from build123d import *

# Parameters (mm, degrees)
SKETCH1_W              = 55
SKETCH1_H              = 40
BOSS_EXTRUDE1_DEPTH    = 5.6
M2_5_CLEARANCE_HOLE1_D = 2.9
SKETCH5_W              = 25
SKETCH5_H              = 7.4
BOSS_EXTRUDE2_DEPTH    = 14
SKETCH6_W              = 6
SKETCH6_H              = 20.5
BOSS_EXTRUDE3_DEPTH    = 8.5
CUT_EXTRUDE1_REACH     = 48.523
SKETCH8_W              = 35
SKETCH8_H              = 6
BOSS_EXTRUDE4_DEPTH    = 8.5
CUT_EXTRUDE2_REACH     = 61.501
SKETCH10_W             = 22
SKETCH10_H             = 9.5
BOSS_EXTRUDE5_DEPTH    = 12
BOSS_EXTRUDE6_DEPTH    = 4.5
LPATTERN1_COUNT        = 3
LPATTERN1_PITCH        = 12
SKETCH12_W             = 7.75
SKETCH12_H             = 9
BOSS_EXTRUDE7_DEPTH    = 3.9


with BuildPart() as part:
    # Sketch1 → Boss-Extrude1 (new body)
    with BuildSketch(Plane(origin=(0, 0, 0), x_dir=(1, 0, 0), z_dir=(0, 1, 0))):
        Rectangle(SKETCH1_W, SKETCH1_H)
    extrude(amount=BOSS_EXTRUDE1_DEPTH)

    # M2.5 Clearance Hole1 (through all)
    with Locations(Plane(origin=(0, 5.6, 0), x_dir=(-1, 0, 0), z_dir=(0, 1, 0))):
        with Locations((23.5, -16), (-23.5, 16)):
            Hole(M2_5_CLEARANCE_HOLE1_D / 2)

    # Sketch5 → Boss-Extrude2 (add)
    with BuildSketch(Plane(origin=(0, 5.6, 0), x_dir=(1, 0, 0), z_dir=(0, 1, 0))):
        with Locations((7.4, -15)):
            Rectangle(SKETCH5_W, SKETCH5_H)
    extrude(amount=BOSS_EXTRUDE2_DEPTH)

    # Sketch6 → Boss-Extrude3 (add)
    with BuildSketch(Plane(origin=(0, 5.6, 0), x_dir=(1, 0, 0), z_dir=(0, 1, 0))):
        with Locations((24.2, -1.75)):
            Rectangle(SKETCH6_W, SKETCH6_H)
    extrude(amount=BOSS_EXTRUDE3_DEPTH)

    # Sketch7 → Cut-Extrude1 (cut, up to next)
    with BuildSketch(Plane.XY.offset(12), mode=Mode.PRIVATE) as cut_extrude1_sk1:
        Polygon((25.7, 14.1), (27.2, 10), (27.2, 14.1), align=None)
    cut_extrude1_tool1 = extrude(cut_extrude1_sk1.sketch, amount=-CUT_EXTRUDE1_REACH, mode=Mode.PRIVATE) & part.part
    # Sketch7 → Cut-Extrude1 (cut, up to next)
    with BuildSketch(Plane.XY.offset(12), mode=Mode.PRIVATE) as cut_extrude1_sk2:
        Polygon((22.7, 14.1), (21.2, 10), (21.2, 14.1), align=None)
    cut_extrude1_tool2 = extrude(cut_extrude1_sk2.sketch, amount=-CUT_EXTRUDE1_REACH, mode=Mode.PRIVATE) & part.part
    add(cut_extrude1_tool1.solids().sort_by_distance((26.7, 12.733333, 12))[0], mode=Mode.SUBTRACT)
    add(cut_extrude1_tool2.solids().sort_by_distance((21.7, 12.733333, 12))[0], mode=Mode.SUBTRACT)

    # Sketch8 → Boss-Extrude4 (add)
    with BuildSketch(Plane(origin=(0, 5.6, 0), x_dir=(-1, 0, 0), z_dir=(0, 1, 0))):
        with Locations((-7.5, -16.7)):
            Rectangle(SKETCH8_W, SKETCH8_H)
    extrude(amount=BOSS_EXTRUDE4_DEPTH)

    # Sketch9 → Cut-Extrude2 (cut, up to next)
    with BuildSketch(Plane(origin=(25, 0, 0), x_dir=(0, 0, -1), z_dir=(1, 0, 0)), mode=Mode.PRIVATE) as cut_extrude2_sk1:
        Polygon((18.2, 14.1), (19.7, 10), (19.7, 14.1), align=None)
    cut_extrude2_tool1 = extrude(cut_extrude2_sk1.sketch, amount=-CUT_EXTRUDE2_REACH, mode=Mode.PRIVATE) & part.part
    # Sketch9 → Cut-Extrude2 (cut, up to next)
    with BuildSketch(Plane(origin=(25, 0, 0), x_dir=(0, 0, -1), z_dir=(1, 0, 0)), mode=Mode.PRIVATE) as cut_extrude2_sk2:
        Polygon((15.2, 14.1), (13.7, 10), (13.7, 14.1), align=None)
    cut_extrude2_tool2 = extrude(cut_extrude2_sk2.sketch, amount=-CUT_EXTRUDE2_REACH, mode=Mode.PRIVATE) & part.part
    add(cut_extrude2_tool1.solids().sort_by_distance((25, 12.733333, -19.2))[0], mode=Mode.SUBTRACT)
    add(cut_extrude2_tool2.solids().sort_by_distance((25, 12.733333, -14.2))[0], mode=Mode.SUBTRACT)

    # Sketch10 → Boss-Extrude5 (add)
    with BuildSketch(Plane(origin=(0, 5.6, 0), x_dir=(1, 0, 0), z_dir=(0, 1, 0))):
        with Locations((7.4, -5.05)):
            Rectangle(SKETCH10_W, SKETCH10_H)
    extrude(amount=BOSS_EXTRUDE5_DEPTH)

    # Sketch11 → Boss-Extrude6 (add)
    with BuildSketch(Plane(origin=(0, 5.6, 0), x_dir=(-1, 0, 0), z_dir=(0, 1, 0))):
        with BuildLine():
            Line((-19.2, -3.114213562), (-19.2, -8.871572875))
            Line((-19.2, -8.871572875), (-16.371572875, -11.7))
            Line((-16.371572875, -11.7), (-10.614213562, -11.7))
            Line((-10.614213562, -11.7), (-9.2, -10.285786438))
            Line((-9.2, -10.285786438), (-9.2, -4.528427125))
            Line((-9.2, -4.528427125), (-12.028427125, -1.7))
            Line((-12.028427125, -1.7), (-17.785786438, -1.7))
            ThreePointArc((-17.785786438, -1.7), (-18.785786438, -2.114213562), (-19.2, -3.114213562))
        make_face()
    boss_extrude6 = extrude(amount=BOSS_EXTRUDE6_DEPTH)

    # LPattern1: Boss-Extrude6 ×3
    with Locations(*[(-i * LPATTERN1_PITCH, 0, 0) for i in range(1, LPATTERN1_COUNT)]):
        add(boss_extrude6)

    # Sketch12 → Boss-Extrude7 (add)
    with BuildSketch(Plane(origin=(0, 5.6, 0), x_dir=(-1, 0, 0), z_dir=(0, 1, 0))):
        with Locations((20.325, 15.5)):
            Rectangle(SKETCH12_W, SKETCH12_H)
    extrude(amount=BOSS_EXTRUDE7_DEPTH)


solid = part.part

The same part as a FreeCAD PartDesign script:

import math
import FreeCAD as App
import Part
import Sketcher

doc = App.newDocument("Part")
body = doc.addObject("PartDesign::Body", "Body")

sketch1 = body.newObject("Sketcher::SketchObject", "Sketch")
sketch1.AttachmentSupport = (doc.getObject("XZ_Plane"), [""])
sketch1.MapMode = "FlatFace"
sketch1.addGeometry(Part.LineSegment(App.Vector(-28, -20, 0), App.Vector(-28, 20, 0)), False)
sketch1.addGeometry(Part.LineSegment(App.Vector(-28, 20, 0), App.Vector(28, 20, 0)), False)
sketch1.addGeometry(Part.LineSegment(App.Vector(28, 20, 0), App.Vector(28, -20, 0)), False)
sketch1.addGeometry(Part.LineSegment(App.Vector(28, -20, 0), App.Vector(-28, -20, 0)), False)
sketch1.addConstraint(Sketcher.Constraint("Coincident", 0, 2, 1, 1))
sketch1.addConstraint(Sketcher.Constraint("Coincident", 1, 2, 2, 1))
sketch1.addConstraint(Sketcher.Constraint("Coincident", 2, 2, 3, 1))
sketch1.addConstraint(Sketcher.Constraint("Coincident", 3, 2, 0, 1))
sketch1.addConstraint(Sketcher.Constraint("Vertical", 0))
sketch1.addConstraint(Sketcher.Constraint("Horizontal", 1))
sketch1.addConstraint(Sketcher.Constraint("Vertical", 2))
sketch1.addConstraint(Sketcher.Constraint("Horizontal", 3))
sketch1.addConstraint(Sketcher.Constraint("Symmetric", 0, 2, 2, 2, -1, 1))
sketch1.addConstraint(Sketcher.Constraint("DistanceX", 1, 1, 1, 2, 55.0))
sketch1.addConstraint(Sketcher.Constraint("DistanceY", 0, 1, 0, 2, 40.0))
pad1 = body.newObject("PartDesign::Pad", "Pad")
pad1.Profile = sketch1
pad1.Length = 5.6
pad1.Reversed = True

sketch2 = body.newObject("Sketcher::SketchObject", "Sketch001")
sketch2.AttachmentSupport = (doc.getObject("XZ_Plane"), [""])
sketch2.MapMode = "FlatFace"
sketch2.AttachmentOffset = App.Placement(App.Vector(0, 0, -5.6), App.Rotation())
sketch2.addGeometry(Part.Circle(App.Vector(-23.5, -16, 0), App.Vector(0, 0, 1), 1.4), False)
sketch2.addGeometry(Part.Circle(App.Vector(23.5, 16, 0), App.Vector(0, 0, 1), 1.4), False)
sketch2.addConstraint(Sketcher.Constraint("Equal", 0, 1))
sketch2.addConstraint(Sketcher.Constraint("Symmetric", 0, 3, 1, 3, -1, 1))
sketch2.addConstraint(Sketcher.Constraint("Diameter", 0, 2.9))
sketch2.addConstraint(Sketcher.Constraint("DistanceY", 0, 3, -1, 1, 16.0))
sketch2.addConstraint(Sketcher.Constraint("DistanceX", 0, 3, 1, 3, 47.0))
doc.recompute()
hole = body.newObject("PartDesign::Hole", "Hole")
hole.Profile = sketch2
hole.ThreadType = "None"
hole.Diameter = 2.9
hole.DepthType = "ThroughAll"
hole.Reversed = True

sketch3 = body.newObject("Sketcher::SketchObject", "Sketch002")
sketch3.AttachmentSupport = (doc.getObject("XZ_Plane"), [""])
sketch3.MapMode = "FlatFace"
sketch3.AttachmentOffset = App.Placement(App.Vector(0, 0, -5.6), App.Rotation())
sketch3.addGeometry(Part.LineSegment(App.Vector(-5, 11, 0), App.Vector(-5, 19, 0)), False)
sketch3.addGeometry(Part.LineSegment(App.Vector(-5, 19, 0), App.Vector(20, 19, 0)), False)
sketch3.addGeometry(Part.LineSegment(App.Vector(20, 19, 0), App.Vector(20, 11, 0)), False)
sketch3.addGeometry(Part.LineSegment(App.Vector(20, 11, 0), App.Vector(-5, 11, 0)), False)
sketch3.addConstraint(Sketcher.Constraint("Coincident", 0, 2, 1, 1))
sketch3.addConstraint(Sketcher.Constraint("Coincident", 1, 2, 2, 1))
sketch3.addConstraint(Sketcher.Constraint("Coincident", 2, 2, 3, 1))
sketch3.addConstraint(Sketcher.Constraint("Coincident", 3, 2, 0, 1))
sketch3.addConstraint(Sketcher.Constraint("Vertical", 0))
sketch3.addConstraint(Sketcher.Constraint("Horizontal", 1))
sketch3.addConstraint(Sketcher.Constraint("Vertical", 2))
sketch3.addConstraint(Sketcher.Constraint("Horizontal", 3))
sketch3.addConstraint(Sketcher.Constraint("DistanceX", 1, 1, 1, 2, 25.0))
sketch3.addConstraint(Sketcher.Constraint("DistanceY", 0, 1, 0, 2, 7.4))
sketch3.addConstraint(Sketcher.Constraint("DistanceX", 0, 2, -1, 1, 5.1))
sketch3.addConstraint(Sketcher.Constraint("DistanceY", -1, 1, 0, 2, 18.7))
pad2 = body.newObject("PartDesign::Pad", "Pad001")
pad2.Profile = sketch3
pad2.Length = 14
pad2.Reversed = True

sketch4 = body.newObject("Sketcher::SketchObject", "Sketch003")
sketch4.AttachmentSupport = (doc.getObject("XZ_Plane"), [""])
sketch4.MapMode = "FlatFace"
sketch4.AttachmentOffset = App.Placement(App.Vector(0, 0, -5.6), App.Rotation())
sketch4.addGeometry(Part.LineSegment(App.Vector(21, -8, 0), App.Vector(21, 12, 0)), False)
sketch4.addGeometry(Part.LineSegment(App.Vector(21, 12, 0), App.Vector(27, 12, 0)), False)
sketch4.addGeometry(Part.LineSegment(App.Vector(27, 12, 0), App.Vector(27, -8, 0)), False)
sketch4.addGeometry(Part.LineSegment(App.Vector(27, -8, 0), App.Vector(21, -8, 0)), False)
sketch4.addConstraint(Sketcher.Constraint("Coincident", 0, 2, 1, 1))
sketch4.addConstraint(Sketcher.Constraint("Coincident", 1, 2, 2, 1))
sketch4.addConstraint(Sketcher.Constraint("Coincident", 2, 2, 3, 1))
sketch4.addConstraint(Sketcher.Constraint("Coincident", 3, 2, 0, 1))
sketch4.addConstraint(Sketcher.Constraint("Vertical", 0))
sketch4.addConstraint(Sketcher.Constraint("Horizontal", 1))
sketch4.addConstraint(Sketcher.Constraint("Vertical", 2))
sketch4.addConstraint(Sketcher.Constraint("Horizontal", 3))
sketch4.addConstraint(Sketcher.Constraint("DistanceX", 1, 1, 1, 2, 6.0))
sketch4.addConstraint(Sketcher.Constraint("DistanceY", 0, 1, 0, 2, 20.5))
sketch4.addConstraint(Sketcher.Constraint("DistanceY", -1, 1, 0, 2, 12.0))
sketch4.addConstraint(Sketcher.Constraint("DistanceX", -1, 1, 0, 2, 21.2))
pad3 = body.newObject("PartDesign::Pad", "Pad002")
pad3.Profile = sketch4
pad3.Length = 8.5
pad3.Reversed = True

sketch5 = body.newObject("Sketcher::SketchObject", "Sketch004")
sketch5.AttachmentSupport = (doc.getObject("XY_Plane"), [""])
sketch5.MapMode = "FlatFace"
sketch5.AttachmentOffset = App.Placement(App.Vector(0, 0, 12), App.Rotation())
sketch5.addGeometry(Part.LineSegment(App.Vector(25.7, 14.1, 0), App.Vector(27.2, 10, 0)), False)
sketch5.addGeometry(Part.LineSegment(App.Vector(27.2, 10, 0), App.Vector(27.2, 14.1, 0)), False)
sketch5.addGeometry(Part.LineSegment(App.Vector(27.2, 14.1, 0), App.Vector(25.7, 14.1, 0)), False)
sketch5.addConstraint(Sketcher.Constraint("Coincident", 0, 2, 1, 1))
sketch5.addConstraint(Sketcher.Constraint("Coincident", 1, 2, 2, 1))
sketch5.addConstraint(Sketcher.Constraint("Coincident", 2, 2, 0, 1))
sketch5.addConstraint(Sketcher.Constraint("Vertical", 1))
sketch5.addConstraint(Sketcher.Constraint("Horizontal", 2))
sketch5.addConstraint(Sketcher.Constraint("DistanceX", 2, 2, 2, 1, 1.5))
sketch5.addConstraint(Sketcher.Constraint("DistanceY", 1, 1, 1, 2, 4.1))
sketch5.addConstraint(Sketcher.Constraint("DistanceY", -1, 1, 0, 2, 10.0))
sketch5.addConstraint(Sketcher.Constraint("DistanceX", -1, 1, 0, 2, 27.2))
pocket1 = body.newObject("PartDesign::Pocket", "Pocket")
pocket1.Profile = sketch5
pocket1.Type = "UpToFirst"

sketch6 = body.newObject("Sketcher::SketchObject", "Sketch005")
sketch6.AttachmentSupport = (doc.getObject("XY_Plane"), [""])
sketch6.MapMode = "FlatFace"
sketch6.AttachmentOffset = App.Placement(App.Vector(0, 0, 12), App.Rotation())
sketch6.addGeometry(Part.LineSegment(App.Vector(21.2, 10, 0), App.Vector(22.7, 14.1, 0)), False)
sketch6.addGeometry(Part.LineSegment(App.Vector(22.7, 14.1, 0), App.Vector(21.2, 14.1, 0)), False)
sketch6.addGeometry(Part.LineSegment(App.Vector(21.2, 14.1, 0), App.Vector(21.2, 10, 0)), False)
sketch6.addConstraint(Sketcher.Constraint("Coincident", 0, 2, 1, 1))
sketch6.addConstraint(Sketcher.Constraint("Coincident", 1, 2, 2, 1))
sketch6.addConstraint(Sketcher.Constraint("Coincident", 2, 2, 0, 1))
sketch6.addConstraint(Sketcher.Constraint("Horizontal", 1))
sketch6.addConstraint(Sketcher.Constraint("Vertical", 2))
sketch6.addConstraint(Sketcher.Constraint("DistanceX", 1, 2, 1, 1, 1.5))
sketch6.addConstraint(Sketcher.Constraint("DistanceY", 2, 2, 2, 1, 4.1))
sketch6.addConstraint(Sketcher.Constraint("DistanceY", -1, 1, 2, 2, 10.0))
sketch6.addConstraint(Sketcher.Constraint("DistanceX", -1, 1, 0, 2, 22.7))
pocket2 = body.newObject("PartDesign::Pocket", "Pocket001")
pocket2.Profile = sketch6
pocket2.Type = "UpToFirst"

sketch7 = body.newObject("Sketcher::SketchObject", "Sketch006")
sketch7.AttachmentSupport = (doc.getObject("XZ_Plane"), [""])
sketch7.MapMode = "FlatFace"
sketch7.AttachmentOffset = App.Placement(App.Vector(0, 0, -5.6), App.Rotation())
sketch7.addGeometry(Part.LineSegment(App.Vector(25, -14, 0), App.Vector(25, -20, 0)), False)
sketch7.addGeometry(Part.LineSegment(App.Vector(25, -20, 0), App.Vector(-10, -20, 0)), False)
sketch7.addGeometry(Part.LineSegment(App.Vector(-10, -20, 0), App.Vector(-10, -14, 0)), False)
sketch7.addGeometry(Part.LineSegment(App.Vector(-10, -14, 0), App.Vector(25, -14, 0)), False)
sketch7.addConstraint(Sketcher.Constraint("Coincident", 0, 2, 1, 1))
sketch7.addConstraint(Sketcher.Constraint("Coincident", 1, 2, 2, 1))
sketch7.addConstraint(Sketcher.Constraint("Coincident", 2, 2, 3, 1))
sketch7.addConstraint(Sketcher.Constraint("Coincident", 3, 2, 0, 1))
sketch7.addConstraint(Sketcher.Constraint("Vertical", 0))
sketch7.addConstraint(Sketcher.Constraint("Horizontal", 1))
sketch7.addConstraint(Sketcher.Constraint("Vertical", 2))
sketch7.addConstraint(Sketcher.Constraint("Horizontal", 3))
sketch7.addConstraint(Sketcher.Constraint("DistanceX", 1, 2, 1, 1, 35.0))
sketch7.addConstraint(Sketcher.Constraint("DistanceY", 0, 2, 0, 1, 6.0))
sketch7.addConstraint(Sketcher.Constraint("DistanceX", -1, 1, 0, 2, 25.0))
sketch7.addConstraint(Sketcher.Constraint("DistanceY", 0, 2, -1, 1, 19.7))
pad4 = body.newObject("PartDesign::Pad", "Pad003")
pad4.Profile = sketch7
pad4.Length = 8.5
pad4.Reversed = True

sketch8 = body.newObject("Sketcher::SketchObject", "Sketch007")
sketch8.AttachmentSupport = (doc.getObject("YZ_Plane"), [""])
sketch8.MapMode = "FlatFace"
sketch8.AttachmentOffset = App.Placement(App.Vector(0, 0, 25), App.Rotation())
sketch8.addGeometry(Part.LineSegment(App.Vector(14.1, -18.2, 0), App.Vector(10, -19.7, 0)), False)
sketch8.addGeometry(Part.LineSegment(App.Vector(10, -19.7, 0), App.Vector(14.1, -19.7, 0)), False)
sketch8.addGeometry(Part.LineSegment(App.Vector(14.1, -19.7, 0), App.Vector(14.1, -18.2, 0)), False)
sketch8.addConstraint(Sketcher.Constraint("Coincident", 0, 2, 1, 1))
sketch8.addConstraint(Sketcher.Constraint("Coincident", 1, 2, 2, 1))
sketch8.addConstraint(Sketcher.Constraint("Coincident", 2, 2, 0, 1))
sketch8.addConstraint(Sketcher.Constraint("Horizontal", 1))
sketch8.addConstraint(Sketcher.Constraint("Vertical", 2))
sketch8.addConstraint(Sketcher.Constraint("DistanceX", 1, 1, 1, 2, 4.1))
sketch8.addConstraint(Sketcher.Constraint("DistanceY", 2, 1, 2, 2, 1.5))
sketch8.addConstraint(Sketcher.Constraint("DistanceX", -1, 1, 0, 2, 10.0))
sketch8.addConstraint(Sketcher.Constraint("DistanceY", 0, 2, -1, 1, 19.7))
pocket3 = body.newObject("PartDesign::Pocket", "Pocket002")
pocket3.Profile = sketch8
pocket3.Type = "UpToFirst"

sketch9 = body.newObject("Sketcher::SketchObject", "Sketch008")
sketch9.AttachmentSupport = (doc.getObject("YZ_Plane"), [""])
sketch9.MapMode = "FlatFace"
sketch9.AttachmentOffset = App.Placement(App.Vector(0, 0, 25), App.Rotation())
sketch9.addGeometry(Part.LineSegment(App.Vector(10, -13.7, 0), App.Vector(14.1, -15.2, 0)), False)
sketch9.addGeometry(Part.LineSegment(App.Vector(14.1, -15.2, 0), App.Vector(14.1, -13.7, 0)), False)
sketch9.addGeometry(Part.LineSegment(App.Vector(14.1, -13.7, 0), App.Vector(10, -13.7, 0)), False)
sketch9.addConstraint(Sketcher.Constraint("Coincident", 0, 2, 1, 1))
sketch9.addConstraint(Sketcher.Constraint("Coincident", 1, 2, 2, 1))
sketch9.addConstraint(Sketcher.Constraint("Coincident", 2, 2, 0, 1))
sketch9.addConstraint(Sketcher.Constraint("Vertical", 1))
sketch9.addConstraint(Sketcher.Constraint("Horizontal", 2))
sketch9.addConstraint(Sketcher.Constraint("DistanceX", 2, 2, 2, 1, 4.1))
sketch9.addConstraint(Sketcher.Constraint("DistanceY", 1, 1, 1, 2, 1.5))
sketch9.addConstraint(Sketcher.Constraint("DistanceX", -1, 1, 2, 2, 10.0))
sketch9.addConstraint(Sketcher.Constraint("DistanceY", 0, 2, -1, 1, 15.2))
pocket4 = body.newObject("PartDesign::Pocket", "Pocket003")
pocket4.Profile = sketch9
pocket4.Type = "UpToFirst"

sketch10 = body.newObject("Sketcher::SketchObject", "Sketch009")
sketch10.AttachmentSupport = (doc.getObject("XZ_Plane"), [""])
sketch10.MapMode = "FlatFace"
sketch10.AttachmentOffset = App.Placement(App.Vector(0, 0, -5.6), App.Rotation())
sketch10.addGeometry(Part.LineSegment(App.Vector(-4, 0, 0), App.Vector(-4, 10, 0)), False)
sketch10.addGeometry(Part.LineSegment(App.Vector(-4, 10, 0), App.Vector(18, 10, 0)), False)
sketch10.addGeometry(Part.LineSegment(App.Vector(18, 10, 0), App.Vector(18, 0, 0)), False)
sketch10.addGeometry(Part.LineSegment(App.Vector(18, 0, 0), App.Vector(-4, 0, 0)), False)
sketch10.addConstraint(Sketcher.Constraint("Coincident", 0, 2, 1, 1))
sketch10.addConstraint(Sketcher.Constraint("Coincident", 1, 2, 2, 1))
sketch10.addConstraint(Sketcher.Constraint("Coincident", 2, 2, 3, 1))
sketch10.addConstraint(Sketcher.Constraint("Coincident", 3, 2, 0, 1))
sketch10.addConstraint(Sketcher.Constraint("Vertical", 0))
sketch10.addConstraint(Sketcher.Constraint("Horizontal", 1))
sketch10.addConstraint(Sketcher.Constraint("Vertical", 2))
sketch10.addConstraint(Sketcher.Constraint("Horizontal", 3))
sketch10.addConstraint(Sketcher.Constraint("DistanceX", 1, 1, 1, 2, 22.0))
sketch10.addConstraint(Sketcher.Constraint("DistanceY", 0, 1, 0, 2, 9.5))
sketch10.addConstraint(Sketcher.Constraint("DistanceX", 0, 2, -1, 1, 3.6))
sketch10.addConstraint(Sketcher.Constraint("DistanceY", -1, 1, 0, 2, 9.8))
pad5 = body.newObject("PartDesign::Pad", "Pad004")
pad5.Profile = sketch10
pad5.Length = 12
pad5.Reversed = True

sketch11 = body.newObject("Sketcher::SketchObject", "Sketch010")
sketch11.AttachmentSupport = (doc.getObject("XZ_Plane"), [""])
sketch11.MapMode = "FlatFace"
sketch11.AttachmentOffset = App.Placement(App.Vector(0, 0, -5.6), App.Rotation())
sketch11.addGeometry(Part.LineSegment(App.Vector(19.2, -3.1, 0), App.Vector(19.2, -8.9, 0)), False)
sketch11.addGeometry(Part.LineSegment(App.Vector(19.2, -8.9, 0), App.Vector(16.4, -11.7, 0)), False)
sketch11.addGeometry(Part.LineSegment(App.Vector(16.4, -11.7, 0), App.Vector(10.6, -11.7, 0)), False)
sketch11.addGeometry(Part.LineSegment(App.Vector(10.6, -11.7, 0), App.Vector(9.2, -10.3, 0)), False)
sketch11.addGeometry(Part.LineSegment(App.Vector(9.2, -10.3, 0), App.Vector(9.2, -4.5, 0)), False)
sketch11.addGeometry(Part.LineSegment(App.Vector(9.2, -4.5, 0), App.Vector(12, -1.7, 0)), False)
sketch11.addGeometry(Part.LineSegment(App.Vector(12, -1.7, 0), App.Vector(17.8, -1.7, 0)), False)
sketch11.addGeometry(Part.ArcOfCircle(Part.Circle(App.Vector(17.8, -3.1, 0), App.Vector(0, 0, 1), 1.4), math.radians(0), math.radians(90)), False)
sketch11.addConstraint(Sketcher.Constraint("Coincident", 0, 2, 1, 1))
sketch11.addConstraint(Sketcher.Constraint("Coincident", 1, 2, 2, 1))
sketch11.addConstraint(Sketcher.Constraint("Coincident", 2, 2, 3, 1))
sketch11.addConstraint(Sketcher.Constraint("Coincident", 3, 2, 4, 1))
sketch11.addConstraint(Sketcher.Constraint("Coincident", 4, 2, 5, 1))
sketch11.addConstraint(Sketcher.Constraint("Coincident", 5, 2, 6, 1))
sketch11.addConstraint(Sketcher.Constraint("Tangent", 6, 2, 7, 2))
sketch11.addConstraint(Sketcher.Constraint("Tangent", 7, 1, 0, 1))
sketch11.addConstraint(Sketcher.Constraint("Vertical", 0))
sketch11.addConstraint(Sketcher.Constraint("Horizontal", 2))
sketch11.addConstraint(Sketcher.Constraint("Vertical", 4))
sketch11.addConstraint(Sketcher.Constraint("Horizontal", 6))
sketch11.addConstraint(Sketcher.Constraint("Perpendicular", 1, 3))
sketch11.addConstraint(Sketcher.Constraint("Perpendicular", 3, 5))
sketch11.addConstraint(Sketcher.Constraint("Equal", 2, 6))
sketch11.addConstraint(Sketcher.Constraint("Equal", 6, 0))
sketch11.addConstraint(Sketcher.Constraint("Equal", 0, 4))
sketch11.addConstraint(Sketcher.Constraint("Equal", 1, 5))
sketch11.addConstraint(Sketcher.Constraint("Distance", 1, 4.0))
sketch11.addConstraint(Sketcher.Constraint("Distance", 3, 2.0))
sketch11.addConstraint(Sketcher.Constraint("DistanceX", 3, 2, 0, 2, 10.0))
sketch11.addConstraint(Sketcher.Constraint("DistanceX", -1, 1, 0, 2, 19.2))
sketch11.addConstraint(Sketcher.Constraint("DistanceY", 1, 2, -1, 1, 11.7))
pad6 = body.newObject("PartDesign::Pad", "Pad005")
pad6.Profile = sketch11
pad6.Length = 4.5
pad6.Reversed = True
doc.recompute()

linearpattern = body.newObject("PartDesign::LinearPattern", "LinearPattern")
linearpattern.Originals = [pad6]
linearpattern.Direction = (doc.getObject("X_Axis"), [""])
linearpattern.Mode = "offset"
linearpattern.Offset = 12
linearpattern.Occurrences = 3
linearpattern.Reversed = True
body.Tip = linearpattern

sketch12 = body.newObject("Sketcher::SketchObject", "Sketch011")
sketch12.AttachmentSupport = (doc.getObject("XZ_Plane"), [""])
sketch12.MapMode = "FlatFace"
sketch12.AttachmentOffset = App.Placement(App.Vector(0, 0, -5.6), App.Rotation())
sketch12.addGeometry(Part.LineSegment(App.Vector(-16, 20, 0), App.Vector(-16, 11, 0)), False)
sketch12.addGeometry(Part.LineSegment(App.Vector(-16, 11, 0), App.Vector(-24, 11, 0)), False)
sketch12.addGeometry(Part.LineSegment(App.Vector(-24, 11, 0), App.Vector(-24, 20, 0)), False)
sketch12.addGeometry(Part.LineSegment(App.Vector(-24, 20, 0), App.Vector(-16, 20, 0)), False)
sketch12.addConstraint(Sketcher.Constraint("Coincident", 0, 2, 1, 1))
sketch12.addConstraint(Sketcher.Constraint("Coincident", 1, 2, 2, 1))
sketch12.addConstraint(Sketcher.Constraint("Coincident", 2, 2, 3, 1))
sketch12.addConstraint(Sketcher.Constraint("Coincident", 3, 2, 0, 1))
sketch12.addConstraint(Sketcher.Constraint("Vertical", 0))
sketch12.addConstraint(Sketcher.Constraint("Horizontal", 1))
sketch12.addConstraint(Sketcher.Constraint("Vertical", 2))
sketch12.addConstraint(Sketcher.Constraint("Horizontal", 3))
sketch12.addConstraint(Sketcher.Constraint("DistanceY", 0, 2, 0, 1, 9.0))
sketch12.addConstraint(Sketcher.Constraint("DistanceY", -1, 1, 0, 2, 11.0))
sketch12.addConstraint(Sketcher.Constraint("DistanceX", 1, 2, 1, 1, 7.75))
sketch12.addConstraint(Sketcher.Constraint("DistanceX", 1, 2, -1, 1, 24.2))
pad7 = body.newObject("PartDesign::Pad", "Pad006")
pad7.Profile = sketch12
pad7.Length = 3.9
pad7.Reversed = True

doc.recompute()
